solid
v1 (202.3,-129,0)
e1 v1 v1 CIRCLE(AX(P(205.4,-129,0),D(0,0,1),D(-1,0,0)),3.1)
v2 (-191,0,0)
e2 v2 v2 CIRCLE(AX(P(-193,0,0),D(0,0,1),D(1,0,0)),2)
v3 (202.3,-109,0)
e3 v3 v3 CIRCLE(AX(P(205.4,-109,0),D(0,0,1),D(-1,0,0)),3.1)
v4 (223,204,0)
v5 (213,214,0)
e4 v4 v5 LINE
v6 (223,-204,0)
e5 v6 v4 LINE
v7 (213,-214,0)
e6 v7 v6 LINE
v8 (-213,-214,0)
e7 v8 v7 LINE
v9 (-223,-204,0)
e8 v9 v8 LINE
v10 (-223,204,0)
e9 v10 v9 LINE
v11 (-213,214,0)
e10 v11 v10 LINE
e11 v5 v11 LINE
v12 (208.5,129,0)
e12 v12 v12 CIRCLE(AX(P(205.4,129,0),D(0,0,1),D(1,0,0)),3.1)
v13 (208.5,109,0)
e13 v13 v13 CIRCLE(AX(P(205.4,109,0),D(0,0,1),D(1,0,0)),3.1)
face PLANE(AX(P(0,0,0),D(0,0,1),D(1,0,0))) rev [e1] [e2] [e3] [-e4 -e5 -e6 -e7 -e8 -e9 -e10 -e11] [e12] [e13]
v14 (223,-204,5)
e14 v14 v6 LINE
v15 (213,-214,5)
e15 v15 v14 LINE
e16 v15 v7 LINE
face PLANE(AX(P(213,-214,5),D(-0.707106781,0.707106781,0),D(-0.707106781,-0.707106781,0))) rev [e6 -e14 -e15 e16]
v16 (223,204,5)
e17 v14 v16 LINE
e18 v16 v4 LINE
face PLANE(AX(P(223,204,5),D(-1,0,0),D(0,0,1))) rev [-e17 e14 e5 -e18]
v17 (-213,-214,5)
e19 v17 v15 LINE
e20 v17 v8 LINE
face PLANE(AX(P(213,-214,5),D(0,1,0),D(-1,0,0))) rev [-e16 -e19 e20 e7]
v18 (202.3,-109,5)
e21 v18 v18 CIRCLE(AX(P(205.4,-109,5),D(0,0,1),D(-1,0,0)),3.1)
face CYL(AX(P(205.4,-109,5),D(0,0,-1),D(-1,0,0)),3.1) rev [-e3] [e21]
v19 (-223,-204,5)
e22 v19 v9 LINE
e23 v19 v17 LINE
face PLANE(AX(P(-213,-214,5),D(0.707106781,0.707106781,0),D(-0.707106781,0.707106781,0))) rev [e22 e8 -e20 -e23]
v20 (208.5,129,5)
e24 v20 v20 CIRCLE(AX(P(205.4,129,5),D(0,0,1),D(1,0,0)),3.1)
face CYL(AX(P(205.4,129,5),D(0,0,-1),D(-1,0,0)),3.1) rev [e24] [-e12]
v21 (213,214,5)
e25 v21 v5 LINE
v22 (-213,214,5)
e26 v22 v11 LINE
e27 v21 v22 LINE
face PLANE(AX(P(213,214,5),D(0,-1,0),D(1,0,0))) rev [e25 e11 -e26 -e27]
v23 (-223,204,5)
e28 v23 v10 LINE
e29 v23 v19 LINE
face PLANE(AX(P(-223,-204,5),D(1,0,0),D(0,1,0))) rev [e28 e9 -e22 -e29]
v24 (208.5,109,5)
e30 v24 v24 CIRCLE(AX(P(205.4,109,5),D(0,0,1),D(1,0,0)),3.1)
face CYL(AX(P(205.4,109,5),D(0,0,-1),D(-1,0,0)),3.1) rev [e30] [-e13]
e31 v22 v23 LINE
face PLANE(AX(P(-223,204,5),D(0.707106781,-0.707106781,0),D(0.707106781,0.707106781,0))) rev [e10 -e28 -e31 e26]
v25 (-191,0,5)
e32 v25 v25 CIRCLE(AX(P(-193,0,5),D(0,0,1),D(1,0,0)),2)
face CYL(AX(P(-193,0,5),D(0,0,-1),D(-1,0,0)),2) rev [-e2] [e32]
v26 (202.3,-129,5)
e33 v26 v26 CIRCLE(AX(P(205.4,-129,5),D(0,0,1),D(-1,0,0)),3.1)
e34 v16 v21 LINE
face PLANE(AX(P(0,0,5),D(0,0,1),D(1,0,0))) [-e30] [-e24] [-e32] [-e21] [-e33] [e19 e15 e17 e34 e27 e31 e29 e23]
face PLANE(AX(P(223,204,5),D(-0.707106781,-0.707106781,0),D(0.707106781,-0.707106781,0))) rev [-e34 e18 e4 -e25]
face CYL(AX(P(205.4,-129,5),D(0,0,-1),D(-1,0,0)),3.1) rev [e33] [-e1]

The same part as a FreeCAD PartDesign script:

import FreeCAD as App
import Part
import Sketcher

V = App.Vector
Q = App.Units.Quantity


def add_polygon(sketch, points):
    """Adds a closed chain of lines whose ends are joined by coincident constraints."""
    first, n = sketch.GeometryCount, len(points)
    for a, b in zip(points, points[1:] + points[:1]):
        sketch.addGeometry(Part.LineSegment(App.Vector(*a, 0), App.Vector(*b, 0)), False)
    for i in range(n):
        sketch.addConstraint(Sketcher.Constraint("Coincident", first + i, 2, first + (i + 1) % n, 1))

doc = App.newDocument("Part")
body = doc.addObject("PartDesign::Body", "Body")

# Sketch on XY plane
sketch1 = body.newObject("Sketcher::SketchObject", "Sketch")
sketch1.AttachmentSupport = (doc.getObject("XY_Plane"), [""])
sketch1.MapMode = "FlatFace"
add_polygon(sketch1, [(-213, 214), (-223, 204), (-223, -204), (-213, -214), (213, -214), (223, -204), (223, 204), (213, 214)])  # lines 0-7
sketch1.addGeometry(Part.Circle(V(205.4, -129, 0), V(0, 0, 1), 3.1), False)  # 8
sketch1.addGeometry(Part.Circle(V(205.4, -109, 0), V(0, 0, 1), 3.1), False)  # 9
sketch1.addGeometry(Part.Circle(V(205.4, 109, 0), V(0, 0, 1), 3.1), False)  # 10
sketch1.addGeometry(Part.Circle(V(205.4, 129, 0), V(0, 0, 1), 3.1), False)  # 11
sketch1.addGeometry(Part.Circle(V(-193, 0, 0), V(0, 0, 1), 2), False)  # 12
sketch1.addConstraint([
    Sketcher.Constraint("Vertical", 1),
    Sketcher.Constraint("Horizontal", 3),
    Sketcher.Constraint("Vertical", 5),
    Sketcher.Constraint("Horizontal", 7),
    Sketcher.Constraint("Equal", 8, 9),
    Sketcher.Constraint("Equal", 9, 10),
    Sketcher.Constraint("Equal", 10, 11),
    Sketcher.Constraint("Symmetric", 0, 2, 4, 2, -1, 1),
    Sketcher.Constraint("Symmetric", 2, 2, 6, 2, -1, 1),
    Sketcher.Constraint("Symmetric", 9, 3, 10, 3, -1),
    Sketcher.Constraint("Symmetric", 8, 3, 11, 3, -1),
    Sketcher.Constraint("PointOnObject", 12, 3, -1),
    Sketcher.Constraint("Perpendicular", 0, 2),
    Sketcher.Constraint("Perpendicular", 2, 4),
    Sketcher.Constraint("Perpendicular", 4, 6),
    Sketcher.Constraint("Horizontal", 1, 2, 4, 2),
    Sketcher.Constraint("Vertical", 8, 3, 9, 3),
    Sketcher.Constraint("Vertical", 3, 2, 6, 2),
    Sketcher.Constraint("Diameter", 12, Q("4 mm")),
    Sketcher.Constraint("Diameter", 8, Q("6.2 mm")),
    Sketcher.Constraint("DistanceX", 3, 1, 3, 2, Q("426 mm")),
    Sketcher.Constraint("DistanceY", 1, 2, 1, 1, Q("408 mm")),
    Sketcher.Constraint("DistanceY", 8, 3, -1, 1, Q("129 mm")),
    Sketcher.Constraint("DistanceY", 9, 3, -1, 1, Q("109 mm")),
    Sketcher.Constraint("DistanceX", 12, 3, -1, 1, Q("193 mm")),
    Sketcher.Constraint("DistanceX", 0, 2, -1, 1, Q("223 mm")),
    Sketcher.Constraint("DistanceX", -1, 1, 8, 3, Q("205.4 mm")),
])
pad1 = body.newObject("PartDesign::Pad", "Pad")
pad1.Profile = sketch1
pad1.Length = 5

doc.recompute()
